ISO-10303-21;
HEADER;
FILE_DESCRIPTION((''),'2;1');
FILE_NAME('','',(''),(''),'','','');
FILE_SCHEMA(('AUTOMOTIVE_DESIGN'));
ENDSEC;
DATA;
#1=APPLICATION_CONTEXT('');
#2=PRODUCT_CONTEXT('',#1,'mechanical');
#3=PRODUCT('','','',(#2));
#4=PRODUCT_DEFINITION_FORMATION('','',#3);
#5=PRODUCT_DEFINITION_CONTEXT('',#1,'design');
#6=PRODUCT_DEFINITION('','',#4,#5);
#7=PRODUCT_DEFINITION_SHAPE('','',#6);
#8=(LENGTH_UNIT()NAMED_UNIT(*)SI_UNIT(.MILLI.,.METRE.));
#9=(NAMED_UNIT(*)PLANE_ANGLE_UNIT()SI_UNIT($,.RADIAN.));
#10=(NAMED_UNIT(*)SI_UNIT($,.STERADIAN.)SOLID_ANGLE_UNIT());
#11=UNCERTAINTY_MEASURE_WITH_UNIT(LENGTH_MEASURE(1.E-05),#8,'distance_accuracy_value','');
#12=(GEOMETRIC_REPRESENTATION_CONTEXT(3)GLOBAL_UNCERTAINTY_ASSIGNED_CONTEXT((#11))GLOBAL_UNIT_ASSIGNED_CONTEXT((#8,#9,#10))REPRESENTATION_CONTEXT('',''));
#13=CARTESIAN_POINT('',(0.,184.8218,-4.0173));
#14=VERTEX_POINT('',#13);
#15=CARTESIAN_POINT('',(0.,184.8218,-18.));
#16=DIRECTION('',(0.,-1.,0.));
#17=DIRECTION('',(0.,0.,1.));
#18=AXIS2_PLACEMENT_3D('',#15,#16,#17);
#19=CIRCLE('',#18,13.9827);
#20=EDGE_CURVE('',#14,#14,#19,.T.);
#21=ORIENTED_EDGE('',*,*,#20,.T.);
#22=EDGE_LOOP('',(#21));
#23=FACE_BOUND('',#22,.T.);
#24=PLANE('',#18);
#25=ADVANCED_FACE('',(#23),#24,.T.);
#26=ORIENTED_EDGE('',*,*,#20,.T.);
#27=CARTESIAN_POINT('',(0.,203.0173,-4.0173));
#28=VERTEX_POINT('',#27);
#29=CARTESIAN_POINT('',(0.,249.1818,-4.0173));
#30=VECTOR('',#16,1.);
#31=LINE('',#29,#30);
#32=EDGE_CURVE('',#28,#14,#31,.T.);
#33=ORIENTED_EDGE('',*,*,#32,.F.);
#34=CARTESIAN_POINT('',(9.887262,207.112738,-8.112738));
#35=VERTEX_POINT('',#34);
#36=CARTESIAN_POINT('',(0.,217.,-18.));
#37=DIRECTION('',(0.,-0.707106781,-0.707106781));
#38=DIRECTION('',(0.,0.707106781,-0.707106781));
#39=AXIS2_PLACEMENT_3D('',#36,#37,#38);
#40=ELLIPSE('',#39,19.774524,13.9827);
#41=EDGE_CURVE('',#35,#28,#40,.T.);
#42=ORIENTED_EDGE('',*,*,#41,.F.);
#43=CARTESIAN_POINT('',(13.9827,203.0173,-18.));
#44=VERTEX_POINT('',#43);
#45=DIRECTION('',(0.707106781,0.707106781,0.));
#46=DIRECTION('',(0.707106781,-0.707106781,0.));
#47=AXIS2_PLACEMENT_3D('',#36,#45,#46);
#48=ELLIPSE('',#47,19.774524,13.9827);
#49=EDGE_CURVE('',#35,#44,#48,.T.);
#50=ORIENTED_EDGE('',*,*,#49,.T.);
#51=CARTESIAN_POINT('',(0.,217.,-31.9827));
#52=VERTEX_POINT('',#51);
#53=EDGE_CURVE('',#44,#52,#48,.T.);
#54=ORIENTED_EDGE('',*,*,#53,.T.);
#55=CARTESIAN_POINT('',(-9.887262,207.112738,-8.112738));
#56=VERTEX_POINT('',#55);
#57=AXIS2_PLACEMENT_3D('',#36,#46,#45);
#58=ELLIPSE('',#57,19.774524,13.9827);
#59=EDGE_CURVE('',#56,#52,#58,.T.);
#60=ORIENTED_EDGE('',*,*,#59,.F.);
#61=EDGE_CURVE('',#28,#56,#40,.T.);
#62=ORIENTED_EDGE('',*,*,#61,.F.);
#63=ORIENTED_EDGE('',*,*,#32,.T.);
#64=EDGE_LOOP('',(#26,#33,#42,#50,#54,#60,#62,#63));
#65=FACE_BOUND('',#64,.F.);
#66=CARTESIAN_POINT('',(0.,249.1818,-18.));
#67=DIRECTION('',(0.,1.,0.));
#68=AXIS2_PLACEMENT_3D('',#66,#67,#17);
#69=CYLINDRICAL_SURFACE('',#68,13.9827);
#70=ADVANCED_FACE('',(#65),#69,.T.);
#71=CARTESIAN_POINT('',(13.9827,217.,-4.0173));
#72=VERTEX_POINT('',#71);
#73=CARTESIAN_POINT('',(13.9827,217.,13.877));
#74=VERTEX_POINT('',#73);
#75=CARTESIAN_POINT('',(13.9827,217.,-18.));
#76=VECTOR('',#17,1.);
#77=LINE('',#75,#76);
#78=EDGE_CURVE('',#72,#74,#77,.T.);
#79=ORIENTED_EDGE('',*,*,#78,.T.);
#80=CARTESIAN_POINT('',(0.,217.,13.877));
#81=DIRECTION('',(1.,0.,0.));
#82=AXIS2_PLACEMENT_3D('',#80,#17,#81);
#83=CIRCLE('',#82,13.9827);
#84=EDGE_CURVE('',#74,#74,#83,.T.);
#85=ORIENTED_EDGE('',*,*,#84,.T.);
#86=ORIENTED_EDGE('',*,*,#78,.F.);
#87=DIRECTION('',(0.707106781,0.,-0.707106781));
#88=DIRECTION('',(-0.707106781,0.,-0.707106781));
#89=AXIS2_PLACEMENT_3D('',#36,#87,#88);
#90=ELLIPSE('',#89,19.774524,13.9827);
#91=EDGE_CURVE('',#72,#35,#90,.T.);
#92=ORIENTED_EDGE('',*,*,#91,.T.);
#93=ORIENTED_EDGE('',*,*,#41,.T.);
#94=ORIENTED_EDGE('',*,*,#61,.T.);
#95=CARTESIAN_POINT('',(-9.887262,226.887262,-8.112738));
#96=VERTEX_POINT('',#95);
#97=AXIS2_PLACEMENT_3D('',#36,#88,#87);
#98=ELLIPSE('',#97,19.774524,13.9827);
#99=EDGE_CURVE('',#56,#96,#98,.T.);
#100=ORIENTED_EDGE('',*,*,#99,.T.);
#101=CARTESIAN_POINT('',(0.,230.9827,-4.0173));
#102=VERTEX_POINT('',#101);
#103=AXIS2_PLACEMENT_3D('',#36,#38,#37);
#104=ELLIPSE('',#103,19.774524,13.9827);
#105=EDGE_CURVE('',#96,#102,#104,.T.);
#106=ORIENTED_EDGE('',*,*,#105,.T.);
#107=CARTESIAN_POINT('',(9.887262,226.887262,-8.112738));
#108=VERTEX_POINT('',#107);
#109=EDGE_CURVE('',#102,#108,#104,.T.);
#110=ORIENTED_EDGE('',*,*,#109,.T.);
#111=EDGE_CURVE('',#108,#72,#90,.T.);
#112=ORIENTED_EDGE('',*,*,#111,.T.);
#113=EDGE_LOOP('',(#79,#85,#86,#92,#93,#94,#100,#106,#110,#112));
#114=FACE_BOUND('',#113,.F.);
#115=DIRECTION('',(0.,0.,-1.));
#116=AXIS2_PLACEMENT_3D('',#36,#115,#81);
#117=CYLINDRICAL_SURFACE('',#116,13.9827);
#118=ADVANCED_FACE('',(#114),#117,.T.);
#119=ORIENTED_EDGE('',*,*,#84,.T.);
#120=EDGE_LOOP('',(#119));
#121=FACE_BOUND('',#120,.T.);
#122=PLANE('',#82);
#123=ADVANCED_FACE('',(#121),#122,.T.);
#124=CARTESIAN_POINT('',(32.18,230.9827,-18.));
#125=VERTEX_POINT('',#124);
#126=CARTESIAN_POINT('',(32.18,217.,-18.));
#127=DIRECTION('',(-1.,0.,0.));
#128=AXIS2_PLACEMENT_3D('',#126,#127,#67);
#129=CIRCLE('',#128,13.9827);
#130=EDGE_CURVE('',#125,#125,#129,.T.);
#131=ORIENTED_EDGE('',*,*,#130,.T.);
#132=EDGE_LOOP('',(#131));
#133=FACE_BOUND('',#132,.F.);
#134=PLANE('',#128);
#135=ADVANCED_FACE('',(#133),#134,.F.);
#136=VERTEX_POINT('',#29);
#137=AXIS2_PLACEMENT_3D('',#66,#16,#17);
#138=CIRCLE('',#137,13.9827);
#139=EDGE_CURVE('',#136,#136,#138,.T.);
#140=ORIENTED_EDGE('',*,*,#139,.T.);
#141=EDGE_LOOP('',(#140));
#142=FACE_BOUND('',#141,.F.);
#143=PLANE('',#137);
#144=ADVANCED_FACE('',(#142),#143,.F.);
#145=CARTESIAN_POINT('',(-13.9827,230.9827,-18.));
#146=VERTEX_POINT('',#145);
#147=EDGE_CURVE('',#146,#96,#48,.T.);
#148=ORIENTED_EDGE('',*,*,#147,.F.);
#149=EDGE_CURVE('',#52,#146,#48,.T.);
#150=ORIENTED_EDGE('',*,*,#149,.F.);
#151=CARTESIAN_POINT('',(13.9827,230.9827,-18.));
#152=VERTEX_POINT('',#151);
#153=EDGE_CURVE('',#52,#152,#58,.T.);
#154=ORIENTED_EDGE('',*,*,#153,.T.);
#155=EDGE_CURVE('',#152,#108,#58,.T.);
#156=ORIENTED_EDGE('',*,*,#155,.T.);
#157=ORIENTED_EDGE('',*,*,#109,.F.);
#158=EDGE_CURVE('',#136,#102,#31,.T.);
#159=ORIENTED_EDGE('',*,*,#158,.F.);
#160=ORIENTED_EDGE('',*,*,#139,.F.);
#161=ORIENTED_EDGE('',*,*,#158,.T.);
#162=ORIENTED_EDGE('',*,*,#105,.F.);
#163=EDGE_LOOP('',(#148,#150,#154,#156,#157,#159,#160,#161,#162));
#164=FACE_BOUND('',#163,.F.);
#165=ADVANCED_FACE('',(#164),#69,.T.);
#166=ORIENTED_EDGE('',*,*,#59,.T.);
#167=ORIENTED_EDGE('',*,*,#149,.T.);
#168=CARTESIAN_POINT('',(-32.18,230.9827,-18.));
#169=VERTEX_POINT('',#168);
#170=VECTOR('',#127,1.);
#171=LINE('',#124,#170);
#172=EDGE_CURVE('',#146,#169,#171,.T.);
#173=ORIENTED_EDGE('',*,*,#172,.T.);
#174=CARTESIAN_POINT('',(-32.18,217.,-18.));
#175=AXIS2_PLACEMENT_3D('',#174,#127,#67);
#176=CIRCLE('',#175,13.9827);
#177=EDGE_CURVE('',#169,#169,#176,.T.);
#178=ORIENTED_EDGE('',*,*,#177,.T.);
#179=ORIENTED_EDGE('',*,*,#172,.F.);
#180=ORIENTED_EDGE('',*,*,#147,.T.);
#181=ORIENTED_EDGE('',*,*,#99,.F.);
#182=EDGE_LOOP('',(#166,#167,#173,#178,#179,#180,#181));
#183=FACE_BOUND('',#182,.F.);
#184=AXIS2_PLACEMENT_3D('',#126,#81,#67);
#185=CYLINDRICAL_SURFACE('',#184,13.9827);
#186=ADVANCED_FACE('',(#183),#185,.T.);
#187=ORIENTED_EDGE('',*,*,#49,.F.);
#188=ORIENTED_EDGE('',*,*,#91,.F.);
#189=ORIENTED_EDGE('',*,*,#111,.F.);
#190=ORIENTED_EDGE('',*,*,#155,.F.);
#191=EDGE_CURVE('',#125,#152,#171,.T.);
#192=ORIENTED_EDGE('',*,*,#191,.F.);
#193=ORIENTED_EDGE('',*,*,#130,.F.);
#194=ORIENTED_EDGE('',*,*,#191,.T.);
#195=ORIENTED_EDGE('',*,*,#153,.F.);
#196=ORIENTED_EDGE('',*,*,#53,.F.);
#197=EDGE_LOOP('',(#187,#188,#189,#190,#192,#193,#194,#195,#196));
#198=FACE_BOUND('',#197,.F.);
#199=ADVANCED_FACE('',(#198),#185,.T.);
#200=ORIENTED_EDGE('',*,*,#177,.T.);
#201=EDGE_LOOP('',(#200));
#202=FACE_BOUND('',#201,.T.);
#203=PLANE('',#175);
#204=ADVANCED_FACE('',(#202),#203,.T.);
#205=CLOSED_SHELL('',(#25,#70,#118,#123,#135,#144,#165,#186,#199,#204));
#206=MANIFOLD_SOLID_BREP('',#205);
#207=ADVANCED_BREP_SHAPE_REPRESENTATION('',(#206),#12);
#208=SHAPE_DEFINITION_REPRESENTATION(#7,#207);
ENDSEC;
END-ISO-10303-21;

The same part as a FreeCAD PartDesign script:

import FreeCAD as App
import Part
import Sketcher
from FreeCAD import Vector
Q = App.Units.Quantity

doc = App.newDocument("Part")
body = doc.addObject("PartDesign::Body", "Body")

# Sketch on XY plane
sketch1 = doc.addObject("Sketcher::SketchObject", "Sketch")
body.addObject(sketch1)
sketch1.AttachmentSupport = (doc.XY_Plane, [""])
sketch1.MapMode = "FlatFace"
sketch1.AttachmentOffset = App.Placement(Vector(0, 0, -32.18), App.Rotation())
sketch1.addGeometry(Part.Circle(Vector(0, 0, 0), Vector(0, 0, 1), 14), False)
sketch1.addConstraint(Sketcher.Constraint("Coincident", 0, 3, -1, 1))
sketch1.addConstraint(Sketcher.Constraint("Diameter", 0, Q("1.101 in")))
pad1 = doc.addObject("PartDesign::Pad", "Pad")
body.addObject(pad1)
pad1.Profile = sketch1
pad1.Length = 64.36
body2 = doc.addObject("PartDesign::Body", "Body001")

# Sketch on XZ plane
sketch2 = doc.addObject("Sketcher::SketchObject", "Sketch001")
body2.addObject(sketch2)
sketch2.AttachmentSupport = (doc.getObject("XZ_Plane001"), [""])
sketch2.MapMode = "FlatFace"
sketch2.AttachmentOffset = App.Placement(Vector(0, 0, -1.267 * 25.4), App.Rotation())
sketch2.addGeometry(Part.Circle(Vector(0, 0, 0), Vector(0, 0, 1), 14), False)
sketch2.addConstraint(Sketcher.Constraint("Coincident", 0, 3, -1, 1))
sketch2.addConstraint(Sketcher.Constraint("Diameter", 0, Q("1.101 in")))
pad2 = doc.addObject("PartDesign::Pad", "Pad001")
body2.addObject(pad2)
pad2.Profile = sketch2
pad2.Length = 64.36
body3 = doc.addObject("PartDesign::Body", "Body002")

# Sketch on YZ plane
sketch3 = doc.addObject("Sketcher::SketchObject", "Sketch002")
body3.addObject(sketch3)
sketch3.AttachmentSupport = (doc.getObject("YZ_Plane002"), [""])
sketch3.MapMode = "FlatFace"
sketch3.addGeometry(Part.Circle(Vector(0, 0, 0), Vector(0, 0, 1), 14), False)
sketch3.addConstraint(Sketcher.Constraint("Coincident", 0, 3, -1, 1))
sketch3.addConstraint(Sketcher.Constraint("Diameter", 0, Q("1.101 in")))
pad3 = doc.addObject("PartDesign::Pad", "Pad002")
body3.addObject(pad3)
pad3.Profile = sketch3
pad3.Length = Q("1.255 in")
doc.recompute()

boolean = doc.addObject("PartDesign::Boolean", "Boolean")
body3.addObject(boolean)
boolean.Type = "Fuse"
boolean.addObjects([body])
doc.recompute()

boolean2 = doc.addObject("PartDesign::Boolean", "Boolean001")
body3.addObject(boolean2)
boolean2.Type = "Fuse"
boolean2.addObjects([body2])
body4 = doc.addObject("PartDesign::Body", "Body003")
doc.recompute()

body3.Placement = App.Placement(Vector(0, 217, -18), App.Rotation(Vector(0, -1, 0), 90))
boolean3 = doc.addObject("PartDesign::Boolean", "Boolean002")
body4.addObject(boolean3)
boolean3.Type = "Fuse"
boolean3.addObjects([body3])

doc.recompute()
